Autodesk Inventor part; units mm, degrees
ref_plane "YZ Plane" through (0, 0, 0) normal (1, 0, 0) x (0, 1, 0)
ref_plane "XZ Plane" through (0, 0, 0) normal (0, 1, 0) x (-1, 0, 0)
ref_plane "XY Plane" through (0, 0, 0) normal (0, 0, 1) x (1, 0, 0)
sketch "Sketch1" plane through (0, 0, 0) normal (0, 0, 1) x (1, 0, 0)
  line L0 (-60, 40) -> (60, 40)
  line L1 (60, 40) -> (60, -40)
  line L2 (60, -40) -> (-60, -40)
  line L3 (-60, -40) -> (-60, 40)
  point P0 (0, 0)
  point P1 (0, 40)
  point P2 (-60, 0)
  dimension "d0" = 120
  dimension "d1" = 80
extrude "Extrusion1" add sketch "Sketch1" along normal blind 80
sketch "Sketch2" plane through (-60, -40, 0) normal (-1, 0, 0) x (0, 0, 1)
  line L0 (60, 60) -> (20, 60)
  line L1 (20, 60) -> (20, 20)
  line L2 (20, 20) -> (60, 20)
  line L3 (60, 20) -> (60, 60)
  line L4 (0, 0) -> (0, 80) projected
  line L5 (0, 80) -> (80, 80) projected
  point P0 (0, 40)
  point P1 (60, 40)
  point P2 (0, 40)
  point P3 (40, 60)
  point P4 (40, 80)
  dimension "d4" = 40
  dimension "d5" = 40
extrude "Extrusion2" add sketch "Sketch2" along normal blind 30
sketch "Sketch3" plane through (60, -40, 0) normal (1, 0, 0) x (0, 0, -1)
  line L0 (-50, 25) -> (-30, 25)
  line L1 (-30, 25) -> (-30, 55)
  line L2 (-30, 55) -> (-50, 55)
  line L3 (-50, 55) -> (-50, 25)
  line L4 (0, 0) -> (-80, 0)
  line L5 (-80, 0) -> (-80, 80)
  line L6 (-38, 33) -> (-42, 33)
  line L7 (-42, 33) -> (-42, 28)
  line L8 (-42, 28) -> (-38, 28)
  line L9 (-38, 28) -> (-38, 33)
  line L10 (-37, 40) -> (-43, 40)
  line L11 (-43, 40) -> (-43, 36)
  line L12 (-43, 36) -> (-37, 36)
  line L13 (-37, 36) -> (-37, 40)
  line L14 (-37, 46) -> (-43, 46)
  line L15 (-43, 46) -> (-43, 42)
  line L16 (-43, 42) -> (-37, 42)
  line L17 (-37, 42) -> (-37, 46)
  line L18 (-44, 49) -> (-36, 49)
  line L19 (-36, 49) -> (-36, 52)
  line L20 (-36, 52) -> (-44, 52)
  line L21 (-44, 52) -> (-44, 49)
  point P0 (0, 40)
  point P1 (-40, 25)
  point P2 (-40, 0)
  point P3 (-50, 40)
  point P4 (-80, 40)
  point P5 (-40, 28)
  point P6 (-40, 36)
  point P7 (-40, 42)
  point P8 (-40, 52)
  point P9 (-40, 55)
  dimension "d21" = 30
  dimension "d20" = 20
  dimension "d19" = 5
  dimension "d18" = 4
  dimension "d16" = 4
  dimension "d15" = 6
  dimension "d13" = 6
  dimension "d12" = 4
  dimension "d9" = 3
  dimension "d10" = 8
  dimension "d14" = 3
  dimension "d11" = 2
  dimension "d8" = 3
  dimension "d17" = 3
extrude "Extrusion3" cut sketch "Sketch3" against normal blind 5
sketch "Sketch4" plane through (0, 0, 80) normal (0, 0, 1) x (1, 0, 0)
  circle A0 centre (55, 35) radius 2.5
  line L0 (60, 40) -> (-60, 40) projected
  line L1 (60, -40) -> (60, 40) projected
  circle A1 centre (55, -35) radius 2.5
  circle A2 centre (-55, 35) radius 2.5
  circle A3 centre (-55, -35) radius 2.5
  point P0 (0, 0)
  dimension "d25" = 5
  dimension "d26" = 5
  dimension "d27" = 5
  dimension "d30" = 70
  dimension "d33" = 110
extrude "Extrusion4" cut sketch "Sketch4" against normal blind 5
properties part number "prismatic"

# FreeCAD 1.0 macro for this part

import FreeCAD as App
import Part
import Sketcher

V = App.Vector

doc = App.newDocument("Part")
params = doc.addObject("Spreadsheet::Sheet", "Params")
for row, (alias, value) in enumerate([
    ("sketch1_width", "120 mm"),
    ("sketch1_height", "80 mm"),
    ("pad1_length", "80 mm"),
    ("sketch2_width", "40 mm"),
    ("pad2_length", "30 mm"),
    ("sketch3_width", "30 mm"),
    ("sketch3_width2", "5 mm"),
    ("sketch3_width3", "4 mm"),
    ("sketch3_width4", "3 mm"),
    ("sketch3_height", "20 mm"),
    ("pocket1_length", "5 mm"),
    ("sketch4_diameter", "5 mm"),
    ("pocket2_length", "5 mm"),
], start=1):
    params.set(f"A{row}", alias)
    params.set(f"B{row}", "=" + value)
    params.setAlias(f"B{row}", alias)

body = doc.addObject("PartDesign::Body", "Body")

# Sketch on XY plane
sketch1 = body.newObject("Sketcher::SketchObject", "Sketch")
sketch1.AttachmentSupport = (doc.getObject("XY_Plane"), [""])
sketch1.MapMode = "FlatFace"
sketch1.addGeometry(Part.LineSegment(V(60, 40, 0), V(-60, 40, 0)), False)
sketch1.addGeometry(Part.LineSegment(V(-60, 40, 0), V(-60, -40, 0)), False)
sketch1.addGeometry(Part.LineSegment(V(-60, -40, 0), V(60, -40, 0)), False)
sketch1.addGeometry(Part.LineSegment(V(60, -40, 0), V(60, 40, 0)), False)
sketch1.addConstraint(Sketcher.Constraint("Coincident", 0, 2, 1, 1))
sketch1.addConstraint(Sketcher.Constraint("Coincident", 1, 2, 2, 1))
sketch1.addConstraint(Sketcher.Constraint("Coincident", 2, 2, 3, 1))
sketch1.addConstraint(Sketcher.Constraint("Coincident", 3, 2, 0, 1))
sketch1.addConstraint(Sketcher.Constraint("Horizontal", 0))
sketch1.addConstraint(Sketcher.Constraint("Vertical", 1))
sketch1.addConstraint(Sketcher.Constraint("Horizontal", 2))
sketch1.addConstraint(Sketcher.Constraint("Vertical", 3))
sketch1.addConstraint(Sketcher.Constraint("Symmetric", 0, 2, 2, 2, -1, 1))
sketch1.addConstraint(Sketcher.Constraint("DistanceX", 0, 2, 0, 1, 120.0))
sketch1.addConstraint(Sketcher.Constraint("DistanceY", 1, 2, 1, 1, 80.0))
sketch1.setExpression("Constraints[9]", "Params.sketch1_width")
sketch1.setExpression("Constraints[10]", "Params.sketch1_height")
pad1 = body.newObject("PartDesign::Pad", "Pad")
pad1.Profile = sketch1
pad1.setExpression("Length", "Params.pad1_length")

# Sketch on YZ plane
sketch2 = body.newObject("Sketcher::SketchObject", "Sketch001")
sketch2.AttachmentSupport = (doc.getObject("YZ_Plane"), [""])
sketch2.MapMode = "FlatFace"
sketch2.AttachmentOffset = App.Placement(V(0, 0, -60), App.Rotation())
sketch2.addGeometry(Part.LineSegment(V(-20, 60, 0), V(20, 60, 0)), False)
sketch2.addGeometry(Part.LineSegment(V(20, 60, 0), V(20, 20, 0)), False)
sketch2.addGeometry(Part.LineSegment(V(20, 20, 0), V(-20, 20, 0)), False)
sketch2.addGeometry(Part.LineSegment(V(-20, 20, 0), V(-20, 60, 0)), False)
sketch2.addConstraint(Sketcher.Constraint("Coincident", 0, 2, 1, 1))
sketch2.addConstraint(Sketcher.Constraint("Coincident", 1, 2, 2, 1))
sketch2.addConstraint(Sketcher.Constraint("Coincident", 2, 2, 3, 1))
sketch2.addConstraint(Sketcher.Constraint("Coincident", 3, 2, 0, 1))
sketch2.addConstraint(Sketcher.Constraint("Horizontal", 0))
sketch2.addConstraint(Sketcher.Constraint("Vertical", 1))
sketch2.addConstraint(Sketcher.Constraint("Horizontal", 2))
sketch2.addConstraint(Sketcher.Constraint("Vertical", 3))
sketch2.addConstraint(Sketcher.Constraint("Equal", 2, 1))
sketch2.addConstraint(Sketcher.Constraint("DistanceX", 0, 1, 0, 2, 40.0))
sketch2.addConstraint(Sketcher.Constraint("DistanceX", -1, 1, 0, 2, 20.0))
sketch2.addConstraint(Sketcher.Constraint("DistanceY", -1, 1, 0, 2, 60.0))
sketch2.setExpression("Constraints[9]", "Params.sketch2_width")
pad2 = body.newObject("PartDesign::Pad", "Pad001")
pad2.Profile = sketch2
pad2.setExpression("Length", "Params.pad2_length")
pad2.Reversed = True

# Sketch on YZ plane
sketch3 = body.newObject("Sketcher::SketchObject", "Sketch002")
sketch3.AttachmentSupport = (doc.getObject("YZ_Plane"), [""])
sketch3.MapMode = "FlatFace"
sketch3.AttachmentOffset = App.Placement(V(0, 0, 60), App.Rotation())
sketch3.addGeometry(Part.LineSegment(V(15, 50, 0), V(-15, 50, 0)), False)
sketch3.addGeometry(Part.LineSegment(V(-15, 50, 0), V(-15, 30, 0)), False)
sketch3.addGeometry(Part.LineSegment(V(-15, 30, 0), V(15, 30, 0)), False)
sketch3.addGeometry(Part.LineSegment(V(15, 30, 0), V(15, 50, 0)), False)
sketch3.addGeometry(Part.LineSegment(V(-7, 42, 0), V(-7, 38, 0)), False)
sketch3.addGeometry(Part.LineSegment(V(-7, 38, 0), V(-12, 38, 0)), False)
sketch3.addGeometry(Part.LineSegment(V(-12, 38, 0), V(-12, 42, 0)), False)
sketch3.addGeometry(Part.LineSegment(V(-12, 42, 0), V(-7, 42, 0)), False)
sketch3.addGeometry(Part.LineSegment(V(0, 43, 0), V(0, 37, 0)), False)
sketch3.addGeometry(Part.LineSegment(V(0, 37, 0), V(-4, 37, 0)), False)
sketch3.addGeometry(Part.LineSegment(V(-4, 37, 0), V(-4, 43, 0)), False)
sketch3.addGeometry(Part.LineSegment(V(-4, 43, 0), V(0, 43, 0)), False)
sketch3.addGeometry(Part.LineSegment(V(6, 43, 0), V(6, 37, 0)), False)
sketch3.addGeometry(Part.LineSegment(V(6, 37, 0), V(2, 37, 0)), False)
sketch3.addGeometry(Part.LineSegment(V(2, 37, 0), V(2, 43, 0)), False)
sketch3.addGeometry(Part.LineSegment(V(2, 43, 0), V(6, 43, 0)), False)
sketch3.addGeometry(Part.LineSegment(V(9, 36, 0), V(9, 44, 0)), False)
sketch3.addGeometry(Part.LineSegment(V(9, 44, 0), V(12, 44, 0)), False)
sketch3.addGeometry(Part.LineSegment(V(12, 44, 0), V(12, 36, 0)), False)
sketch3.addGeometry(Part.LineSegment(V(12, 36, 0), V(9, 36, 0)), False)
sketch3.addConstraint(Sketcher.Constraint("Coincident", 0, 2, 1, 1))
sketch3.addConstraint(Sketcher.Constraint("Coincident", 1, 2, 2, 1))
sketch3.addConstraint(Sketcher.Constraint("Coincident", 2, 2, 3, 1))
sketch3.addConstraint(Sketcher.Constraint("Coincident", 3, 2, 0, 1))
sketch3.addConstraint(Sketcher.Constraint("Coincident", 4, 2, 5, 1))
sketch3.addConstraint(Sketcher.Constraint("Coincident", 5, 2, 6, 1))
sketch3.addConstraint(Sketcher.Constraint("Coincident", 6, 2, 7, 1))
sketch3.addConstraint(Sketcher.Constraint("Coincident", 7, 2, 4, 1))
sketch3.addConstraint(Sketcher.Constraint("Coincident", 8, 2, 9, 1))
sketch3.addConstraint(Sketcher.Constraint("Coincident", 9, 2, 10, 1))
sketch3.addConstraint(Sketcher.Constraint("Coincident", 10, 2, 11, 1))
sketch3.addConstraint(Sketcher.Constraint("Coincident", 11, 2, 8, 1))
sketch3.addConstraint(Sketcher.Constraint("Coincident", 12, 2, 13, 1))
sketch3.addConstraint(Sketcher.Constraint("Coincident", 13, 2, 14, 1))
sketch3.addConstraint(Sketcher.Constraint("Coincident", 14, 2, 15, 1))
sketch3.addConstraint(Sketcher.Constraint("Coincident", 15, 2, 12, 1))
sketch3.addConstraint(Sketcher.Constraint("Coincident", 16, 2, 17, 1))
sketch3.addConstraint(Sketcher.Constraint("Coincident", 17, 2, 18, 1))
sketch3.addConstraint(Sketcher.Constraint("Coincident", 18, 2, 19, 1))
sketch3.addConstraint(Sketcher.Constraint("Coincident", 19, 2, 16, 1))
sketch3.addConstraint(Sketcher.Constraint("Horizontal", 0))
sketch3.addConstraint(Sketcher.Constraint("Vertical", 1))
sketch3.addConstraint(Sketcher.Constraint("Horizontal", 2))
sketch3.addConstraint(Sketcher.Constraint("Vertical", 3))
sketch3.addConstraint(Sketcher.Constraint("Vertical", 4))
sketch3.addConstraint(Sketcher.Constraint("Horizontal", 5))
sketch3.addConstraint(Sketcher.Constraint("Vertical", 6))
sketch3.addConstraint(Sketcher.Constraint("Horizontal", 7))
sketch3.addConstraint(Sketcher.Constraint("Vertical", 8))
sketch3.addConstraint(Sketcher.Constraint("Horizontal", 9))
sketch3.addConstraint(Sketcher.Constraint("Vertical", 10))
sketch3.addConstraint(Sketcher.Constraint("Horizontal", 11))
sketch3.addConstraint(Sketcher.Constraint("Vertical", 12))
sketch3.addConstraint(Sketcher.Constraint("Horizontal", 13))
sketch3.addConstraint(Sketcher.Constraint("Vertical", 14))
sketch3.addConstraint(Sketcher.Constraint("Horizontal", 15))
sketch3.addConstraint(Sketcher.Constraint("Vertical", 16))
sketch3.addConstraint(Sketcher.Constraint("Horizontal", 17))
sketch3.addConstraint(Sketcher.Constraint("Vertical", 18))
sketch3.addConstraint(Sketcher.Constraint("Horizontal", 19))
sketch3.addConstraint(Sketcher.Constraint("PointOnObject", 8, 2, -2))
sketch3.addConstraint(Sketcher.Constraint("Horizontal", 9, 2, 12, 2))
sketch3.addConstraint(Sketcher.Constraint("Horizontal", 11, 2, 14, 2))
sketch3.addConstraint(Sketcher.Constraint("Equal", 11, 13))
sketch3.addConstraint(Sketcher.Constraint("Equal", 15, 4))
sketch3.addConstraint(Sketcher.Constraint("DistanceX", 0, 2, 0, 1, 30.0))
sketch3.addConstraint(Sketcher.Constraint("DistanceX", 5, 2, 5, 1, 5.0))
sketch3.addConstraint(Sketcher.Constraint("DistanceX", 9, 2, 9, 1, 4.0))
sketch3.addConstraint(Sketcher.Constraint("DistanceX", 17, 1, 17, 2, 3.0))
sketch3.addConstraint(Sketcher.Constraint("DistanceY", 1, 2, 1, 1, 20.0))
sketch3.addConstraint(Sketcher.Constraint("DistanceY", 8, 2, 8, 1, 6.0))
sketch3.addConstraint(Sketcher.Constraint("DistanceY", 16, 1, 16, 2, 8.0))
sketch3.addConstraint(Sketcher.Constraint("DistanceY", -1, 1, 1, 2, 30.0))
sketch3.addConstraint(Sketcher.Constraint("DistanceX", -1, 1, 12, 2, 6.0))
sketch3.addConstraint(Sketcher.Constraint("DistanceX", 1, 2, 4, 2, 8.0))
sketch3.addConstraint(Sketcher.Constraint("DistanceY", 1, 2, 4, 2, 8.0))
sketch3.addConstraint(Sketcher.Constraint("DistanceY", 8, 2, 7, 2, 5.0))
sketch3.addConstraint(Sketcher.Constraint("DistanceX", 4, 2, 9, 2, 3.0))
sketch3.addConstraint(Sketcher.Constraint("DistanceX", 15, 2, 16, 2, 3.0))
sketch3.addConstraint(Sketcher.Constraint("DistanceY", 16, 2, 3, 2, 6.0))
sketch3.setExpression("Constraints[45]", "Params.sketch3_width")
sketch3.setExpression("Constraints[46]", "Params.sketch3_width2")
sketch3.setExpression("Constraints[47]", "Params.sketch3_width3")
sketch3.setExpression("Constraints[48]", "Params.sketch3_width4")
sketch3.setExpression("Constraints[49]", "Params.sketch3_height")
pocket1 = body.newObject("PartDesign::Pocket", "Pocket")
pocket1.Profile = sketch3
pocket1.setExpression("Length", "Params.pocket1_length")

# Sketch on XY plane
sketch4 = body.newObject("Sketcher::SketchObject", "Sketch003")
sketch4.AttachmentSupport = (doc.getObject("XY_Plane"), [""])
sketch4.MapMode = "FlatFace"
sketch4.AttachmentOffset = App.Placement(V(0, 0, 80), App.Rotation())
sketch4.addGeometry(Part.Circle(V(55, 35, 0), V(0, 0, 1), 2.5), False)
sketch4.addGeometry(Part.Circle(V(55, -35, 0), V(0, 0, 1), 2.5), False)
sketch4.addGeometry(Part.Circle(V(-55, 35, 0), V(0, 0, 1), 2.5), False)
sketch4.addGeometry(Part.Circle(V(-55, -35, 0), V(0, 0, 1), 2.5), False)
sketch4.addConstraint(Sketcher.Constraint("Equal", 0, 1))
sketch4.addConstraint(Sketcher.Constraint("Equal", 1, 2))
sketch4.addConstraint(Sketcher.Constraint("Equal", 2, 3))
sketch4.addConstraint(Sketcher.Constraint("Symmetric", 1, 3, 2, 3, -1, 1))
sketch4.addConstraint(Sketcher.Constraint("Symmetric", 0, 3, 3, 3, -1, 1))
sketch4.addConstraint(Sketcher.Constraint("Symmetric", 0, 3, 2, 3, -2))
sketch4.addConstraint(Sketcher.Constraint("Diameter", 0, 5.0))
sketch4.addConstraint(Sketcher.Constraint("DistanceY", 1, 3, 0, 3, 70.0))
sketch4.addConstraint(Sketcher.Constraint("DistanceX", 2, 3, 0, 3, 110.0))
sketch4.setExpression("Constraints[6]", "Params.sketch4_diameter")
pocket2 = body.newObject("PartDesign::Pocket", "Pocket001")
pocket2.Profile = sketch4
pocket2.setExpression("Length", "Params.pocket2_length")

doc.recompute()
